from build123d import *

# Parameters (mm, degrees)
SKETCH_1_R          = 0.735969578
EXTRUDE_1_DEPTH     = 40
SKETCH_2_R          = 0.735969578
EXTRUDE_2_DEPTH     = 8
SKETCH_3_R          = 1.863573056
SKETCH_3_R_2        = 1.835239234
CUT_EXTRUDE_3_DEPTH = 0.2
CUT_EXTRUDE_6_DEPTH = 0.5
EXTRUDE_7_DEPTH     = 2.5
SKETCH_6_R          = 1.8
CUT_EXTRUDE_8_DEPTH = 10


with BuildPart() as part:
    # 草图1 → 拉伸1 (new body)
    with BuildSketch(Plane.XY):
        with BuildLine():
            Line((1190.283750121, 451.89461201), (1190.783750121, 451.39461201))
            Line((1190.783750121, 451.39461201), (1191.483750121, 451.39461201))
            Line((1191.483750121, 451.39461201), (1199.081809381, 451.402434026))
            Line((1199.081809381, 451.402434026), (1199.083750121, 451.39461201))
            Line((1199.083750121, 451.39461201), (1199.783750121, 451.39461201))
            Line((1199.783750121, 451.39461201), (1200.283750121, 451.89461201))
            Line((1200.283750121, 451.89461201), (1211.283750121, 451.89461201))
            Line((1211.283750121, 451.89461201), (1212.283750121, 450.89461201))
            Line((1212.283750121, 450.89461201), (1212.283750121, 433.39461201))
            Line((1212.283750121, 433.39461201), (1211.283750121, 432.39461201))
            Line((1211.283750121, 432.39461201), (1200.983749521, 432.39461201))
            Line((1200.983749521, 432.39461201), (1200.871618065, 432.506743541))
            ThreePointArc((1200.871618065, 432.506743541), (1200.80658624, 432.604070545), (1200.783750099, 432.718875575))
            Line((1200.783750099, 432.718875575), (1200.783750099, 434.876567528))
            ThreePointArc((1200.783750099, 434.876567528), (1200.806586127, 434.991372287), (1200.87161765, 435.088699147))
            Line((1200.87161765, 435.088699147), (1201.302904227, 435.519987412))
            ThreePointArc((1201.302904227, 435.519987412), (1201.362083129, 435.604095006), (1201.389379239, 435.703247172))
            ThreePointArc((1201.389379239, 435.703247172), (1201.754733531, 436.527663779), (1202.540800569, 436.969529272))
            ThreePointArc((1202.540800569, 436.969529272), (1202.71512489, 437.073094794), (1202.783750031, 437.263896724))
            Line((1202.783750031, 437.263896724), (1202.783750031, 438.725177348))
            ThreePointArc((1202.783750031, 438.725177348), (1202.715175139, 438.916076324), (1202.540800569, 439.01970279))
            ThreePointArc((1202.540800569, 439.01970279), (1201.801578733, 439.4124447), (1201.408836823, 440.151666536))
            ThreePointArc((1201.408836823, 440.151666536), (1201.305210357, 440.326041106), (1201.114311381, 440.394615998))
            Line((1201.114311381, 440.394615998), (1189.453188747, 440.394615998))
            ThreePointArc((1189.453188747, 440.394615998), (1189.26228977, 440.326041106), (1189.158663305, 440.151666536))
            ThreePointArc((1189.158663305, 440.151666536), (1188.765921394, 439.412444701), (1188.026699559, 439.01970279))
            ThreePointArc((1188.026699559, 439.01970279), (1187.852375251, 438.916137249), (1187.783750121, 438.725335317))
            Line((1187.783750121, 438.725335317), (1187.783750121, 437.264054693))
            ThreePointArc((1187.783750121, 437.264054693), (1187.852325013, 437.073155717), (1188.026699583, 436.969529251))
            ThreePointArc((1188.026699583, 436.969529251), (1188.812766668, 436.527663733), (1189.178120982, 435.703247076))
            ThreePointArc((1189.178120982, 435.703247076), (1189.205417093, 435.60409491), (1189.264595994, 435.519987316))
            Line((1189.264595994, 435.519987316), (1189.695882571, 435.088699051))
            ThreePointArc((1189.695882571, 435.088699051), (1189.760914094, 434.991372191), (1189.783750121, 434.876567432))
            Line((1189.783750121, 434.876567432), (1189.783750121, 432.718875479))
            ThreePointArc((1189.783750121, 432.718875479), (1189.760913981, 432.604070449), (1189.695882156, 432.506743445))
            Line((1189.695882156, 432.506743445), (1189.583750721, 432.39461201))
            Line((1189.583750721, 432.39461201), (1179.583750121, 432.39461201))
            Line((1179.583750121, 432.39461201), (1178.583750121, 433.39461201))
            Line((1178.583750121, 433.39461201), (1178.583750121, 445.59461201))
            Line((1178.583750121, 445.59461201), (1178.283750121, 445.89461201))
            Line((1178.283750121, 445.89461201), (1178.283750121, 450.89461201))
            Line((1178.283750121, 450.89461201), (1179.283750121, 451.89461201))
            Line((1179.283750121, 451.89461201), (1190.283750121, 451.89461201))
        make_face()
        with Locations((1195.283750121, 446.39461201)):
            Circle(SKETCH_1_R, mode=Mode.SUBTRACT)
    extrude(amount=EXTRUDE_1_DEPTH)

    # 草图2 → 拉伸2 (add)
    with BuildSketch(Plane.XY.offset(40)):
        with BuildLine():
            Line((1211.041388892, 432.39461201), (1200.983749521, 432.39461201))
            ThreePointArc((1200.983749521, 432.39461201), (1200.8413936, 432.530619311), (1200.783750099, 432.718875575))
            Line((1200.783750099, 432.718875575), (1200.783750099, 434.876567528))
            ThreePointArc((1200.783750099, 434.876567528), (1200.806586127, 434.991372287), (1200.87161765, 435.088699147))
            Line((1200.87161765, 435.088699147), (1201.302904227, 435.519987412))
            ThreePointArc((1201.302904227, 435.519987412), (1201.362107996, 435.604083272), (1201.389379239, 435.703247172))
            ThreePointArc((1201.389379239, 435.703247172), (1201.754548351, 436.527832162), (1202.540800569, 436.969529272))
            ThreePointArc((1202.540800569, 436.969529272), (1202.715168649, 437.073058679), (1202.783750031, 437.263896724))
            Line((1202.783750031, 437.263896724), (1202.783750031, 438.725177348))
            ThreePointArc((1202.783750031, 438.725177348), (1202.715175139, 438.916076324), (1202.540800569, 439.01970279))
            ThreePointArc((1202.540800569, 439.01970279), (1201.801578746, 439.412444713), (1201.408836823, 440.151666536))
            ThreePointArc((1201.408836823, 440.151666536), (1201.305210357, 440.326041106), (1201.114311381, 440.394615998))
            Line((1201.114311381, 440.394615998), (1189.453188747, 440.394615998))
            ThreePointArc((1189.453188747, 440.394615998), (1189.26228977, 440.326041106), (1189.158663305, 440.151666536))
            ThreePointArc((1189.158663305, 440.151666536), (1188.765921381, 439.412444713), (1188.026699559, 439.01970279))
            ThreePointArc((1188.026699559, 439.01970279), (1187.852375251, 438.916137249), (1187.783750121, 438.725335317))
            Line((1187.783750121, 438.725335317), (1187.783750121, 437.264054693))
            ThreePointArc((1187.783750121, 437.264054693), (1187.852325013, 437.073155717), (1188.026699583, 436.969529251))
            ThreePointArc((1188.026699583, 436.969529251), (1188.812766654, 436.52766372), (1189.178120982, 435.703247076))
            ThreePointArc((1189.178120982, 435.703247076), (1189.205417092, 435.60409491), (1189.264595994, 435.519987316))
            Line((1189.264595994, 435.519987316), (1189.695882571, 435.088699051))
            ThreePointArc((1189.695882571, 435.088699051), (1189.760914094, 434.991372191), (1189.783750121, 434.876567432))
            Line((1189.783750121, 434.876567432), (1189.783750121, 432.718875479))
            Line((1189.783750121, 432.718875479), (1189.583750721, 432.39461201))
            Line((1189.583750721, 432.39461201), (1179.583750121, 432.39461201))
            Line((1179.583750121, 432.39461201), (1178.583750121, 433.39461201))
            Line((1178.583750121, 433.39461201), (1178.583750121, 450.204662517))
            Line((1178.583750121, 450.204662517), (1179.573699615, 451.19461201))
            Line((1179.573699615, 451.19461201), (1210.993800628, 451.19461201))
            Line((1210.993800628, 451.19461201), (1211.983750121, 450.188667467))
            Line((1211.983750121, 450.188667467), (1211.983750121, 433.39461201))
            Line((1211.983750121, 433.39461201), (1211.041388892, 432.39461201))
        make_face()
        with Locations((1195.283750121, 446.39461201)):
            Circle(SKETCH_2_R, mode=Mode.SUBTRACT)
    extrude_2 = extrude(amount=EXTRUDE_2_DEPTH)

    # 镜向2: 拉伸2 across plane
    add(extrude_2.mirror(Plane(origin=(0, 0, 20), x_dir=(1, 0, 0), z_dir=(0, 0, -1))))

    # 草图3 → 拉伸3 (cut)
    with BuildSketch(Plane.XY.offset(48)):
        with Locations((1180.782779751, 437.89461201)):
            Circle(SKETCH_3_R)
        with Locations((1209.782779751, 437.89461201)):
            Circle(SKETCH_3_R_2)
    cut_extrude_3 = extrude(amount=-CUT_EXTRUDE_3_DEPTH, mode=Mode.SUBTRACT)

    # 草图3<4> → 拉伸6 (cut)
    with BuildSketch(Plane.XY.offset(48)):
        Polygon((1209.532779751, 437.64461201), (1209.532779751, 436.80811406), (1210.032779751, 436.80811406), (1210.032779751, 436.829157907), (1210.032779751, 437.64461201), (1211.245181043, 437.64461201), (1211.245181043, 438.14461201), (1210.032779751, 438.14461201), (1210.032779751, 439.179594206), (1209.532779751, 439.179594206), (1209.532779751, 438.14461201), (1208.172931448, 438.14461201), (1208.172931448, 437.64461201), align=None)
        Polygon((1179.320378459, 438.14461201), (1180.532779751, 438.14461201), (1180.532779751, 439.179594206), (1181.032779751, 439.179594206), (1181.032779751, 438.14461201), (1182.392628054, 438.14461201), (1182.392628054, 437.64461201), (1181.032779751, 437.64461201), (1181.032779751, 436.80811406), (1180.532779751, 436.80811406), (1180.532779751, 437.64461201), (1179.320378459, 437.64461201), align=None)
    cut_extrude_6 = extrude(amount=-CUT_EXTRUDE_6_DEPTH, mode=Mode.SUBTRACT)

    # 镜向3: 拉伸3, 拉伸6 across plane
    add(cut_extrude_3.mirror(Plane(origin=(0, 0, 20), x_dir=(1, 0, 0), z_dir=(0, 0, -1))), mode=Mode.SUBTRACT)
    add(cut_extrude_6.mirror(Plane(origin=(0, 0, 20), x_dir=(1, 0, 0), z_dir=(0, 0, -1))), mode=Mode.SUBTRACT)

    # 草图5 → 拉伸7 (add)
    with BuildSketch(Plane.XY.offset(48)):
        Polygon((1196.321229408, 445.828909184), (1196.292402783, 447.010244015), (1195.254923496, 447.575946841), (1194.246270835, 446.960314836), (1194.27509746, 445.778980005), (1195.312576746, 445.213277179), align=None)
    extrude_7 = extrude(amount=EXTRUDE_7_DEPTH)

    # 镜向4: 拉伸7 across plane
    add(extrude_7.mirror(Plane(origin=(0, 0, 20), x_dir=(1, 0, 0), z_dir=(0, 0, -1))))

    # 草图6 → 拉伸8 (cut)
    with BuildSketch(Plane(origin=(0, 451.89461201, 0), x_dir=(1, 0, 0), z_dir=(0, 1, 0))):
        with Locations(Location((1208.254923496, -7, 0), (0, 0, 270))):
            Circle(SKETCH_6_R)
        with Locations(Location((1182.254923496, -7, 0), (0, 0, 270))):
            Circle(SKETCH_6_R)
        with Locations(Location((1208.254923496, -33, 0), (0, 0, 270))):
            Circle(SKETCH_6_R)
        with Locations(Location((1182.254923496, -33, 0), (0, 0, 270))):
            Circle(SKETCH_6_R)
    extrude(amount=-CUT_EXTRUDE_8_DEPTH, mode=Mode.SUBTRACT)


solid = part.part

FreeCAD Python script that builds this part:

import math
import FreeCAD as App
import Part
import Sketcher

V = App.Vector
Q = App.Units.Quantity

doc = App.newDocument("Part")
body = doc.addObject("PartDesign::Body", "Body")

sketch1 = body.newObject("Sketcher::SketchObject", "Sketch")
sketch1.AttachmentSupport = (doc.getObject("XY_Plane"), [""])
sketch1.MapMode = "FlatFace"
sketch1.addGeometry([
    Part.LineSegment(V(1190.784, 451.395, 0), V(1190.284, 451.895, 0)),
    Part.LineSegment(V(1190.284, 451.895, 0), V(1179.284, 451.895, 0)),
    Part.LineSegment(V(1179.284, 451.895, 0), V(1178.284, 450.895, 0)),
    Part.LineSegment(V(1178.284, 450.895, 0), V(1178.284, 445.895, 0)),
    Part.LineSegment(V(1178.284, 445.895, 0), V(1178.584, 445.595, 0)),
    Part.LineSegment(V(1178.584, 445.595, 0), V(1178.584, 433.395, 0)),
    Part.LineSegment(V(1178.584, 433.395, 0), V(1179.584, 432.395, 0)),
    Part.LineSegment(V(1179.584, 432.395, 0), V(1189.584, 432.395, 0)),
    Part.LineSegment(V(1189.584, 432.395, 0), V(1189.696, 432.507, 0)),
    Part.ArcOfCircle(Part.Circle(V(1189.484, 432.719, 0), V(0, 0, 1), 0.3), math.radians(-45), math.radians(0)),
    Part.LineSegment(V(1189.784, 432.719, 0), V(1189.784, 434.877, 0)),
    Part.ArcOfCircle(Part.Circle(V(1189.484, 434.877, 0), V(0, 0, 1), 0.3), math.radians(0), math.radians(45)),
    Part.LineSegment(V(1189.696, 435.089, 0), V(1189.265, 435.52, 0)),
    Part.ArcOfCircle(Part.Circle(V(1189.477, 435.732, 0), V(0, 0, 1), 0.3), math.radians(-174), math.radians(-135)),
    Part.ArcOfCircle(Part.Circle(V(1187.755, 435.566, 0), V(0, 0, 1), 1.43), math.radians(6), math.radians(79)),
    Part.ArcOfCircle(Part.Circle(V(1188.084, 437.264, 0), V(0, 0, 1), 0.3), math.radians(-180), math.radians(-101)),
    Part.LineSegment(V(1187.784, 437.264, 0), V(1187.784, 438.725, 0)),
    Part.ArcOfCircle(Part.Circle(V(1188.084, 438.725, 0), V(0, 0, 1), 0.3), math.radians(101), math.radians(180)),
    Part.ArcOfCircle(Part.Circle(V(1187.755, 440.424, 0), V(0, 0, 1), 1.43), math.radians(-79), math.radians(-11)),
    Part.ArcOfCircle(Part.Circle(V(1189.453, 440.095, 0), V(0, 0, 1), 0.3), math.radians(90), math.radians(169)),
    Part.LineSegment(V(1189.453, 440.395, 0), V(1201.114, 440.395, 0)),
    Part.ArcOfCircle(Part.Circle(V(1201.114, 440.095, 0), V(0, 0, 1), 0.3), math.radians(11), math.radians(90)),
    Part.ArcOfCircle(Part.Circle(V(1202.813, 440.424, 0), V(0, 0, 1), 1.43), math.radians(-169), math.radians(-101)),
    Part.ArcOfCircle(Part.Circle(V(1202.484, 438.725, 0), V(0, 0, 1), 0.3), math.radians(0), math.radians(79)),
    Part.LineSegment(V(1202.784, 438.725, 0), V(1202.784, 437.264, 0)),
    Part.ArcOfCircle(Part.Circle(V(1202.484, 437.264, 0), V(0, 0, 1), 0.3), math.radians(-79), math.radians(0)),
    Part.ArcOfCircle(Part.Circle(V(1202.813, 435.566, 0), V(0, 0, 1), 1.43), math.radians(101), math.radians(174)),
    Part.ArcOfCircle(Part.Circle(V(1201.091, 435.732, 0), V(0, 0, 1), 0.3), math.radians(-45), math.radians(-6)),
    Part.LineSegment(V(1201.303, 435.52, 0), V(1200.872, 435.089, 0)),
    Part.ArcOfCircle(Part.Circle(V(1201.084, 434.877, 0), V(0, 0, 1), 0.3), math.radians(135), math.radians(180)),
    Part.LineSegment(V(1200.784, 434.877, 0), V(1200.784, 432.719, 0)),
    Part.ArcOfCircle(Part.Circle(V(1201.084, 432.719, 0), V(0, 0, 1), 0.3), math.radians(-180), math.radians(-135)),
    Part.LineSegment(V(1200.872, 432.507, 0), V(1200.984, 432.395, 0)),
    Part.LineSegment(V(1200.984, 432.395, 0), V(1211.284, 432.395, 0)),
    Part.LineSegment(V(1211.284, 432.395, 0), V(1212.284, 433.395, 0)),
    Part.LineSegment(V(1212.284, 433.395, 0), V(1212.284, 450.895, 0)),
    Part.LineSegment(V(1212.284, 450.895, 0), V(1211.284, 451.895, 0)),
    Part.LineSegment(V(1211.284, 451.895, 0), V(1200.284, 451.895, 0)),
    Part.LineSegment(V(1200.284, 451.895, 0), V(1199.784, 451.395, 0)),
    Part.LineSegment(V(1199.784, 451.395, 0), V(1199.084, 451.395, 0)),
    Part.LineSegment(V(1199.084, 451.395, 0), V(1199.082, 451.402, 0)),
    Part.LineSegment(V(1199.082, 451.402, 0), V(1191.484, 451.395, 0)),
    Part.LineSegment(V(1191.484, 451.395, 0), V(1190.784, 451.395, 0)),
    Part.Circle(V(1195.284, 446.395, 0), V(0, 0, 1), 0.736),
], False)
sketch1.addConstraint([
    Sketcher.Constraint("Coincident", 0, 2, 1, 1),
    Sketcher.Constraint("Coincident", 1, 2, 2, 1),
    Sketcher.Constraint("Coincident", 2, 2, 3, 1),
    Sketcher.Constraint("Coincident", 3, 2, 4, 1),
    Sketcher.Constraint("Coincident", 4, 2, 5, 1),
    Sketcher.Constraint("Coincident", 5, 2, 6, 1),
    Sketcher.Constraint("Coincident", 6, 2, 7, 1),
    Sketcher.Constraint("Coincident", 7, 2, 8, 1),
    Sketcher.Constraint("Tangent", 8, 2, 9, 1),
    Sketcher.Constraint("Tangent", 9, 2, 10, 1),
    Sketcher.Constraint("Tangent", 10, 2, 11, 1),
    Sketcher.Constraint("Tangent", 11, 2, 12, 1),
    Sketcher.Constraint("Tangent", 12, 2, 13, 2),
    Sketcher.Constraint("Tangent", 13, 1, 14, 1),
    Sketcher.Constraint("Tangent", 14, 2, 15, 2),
    Sketcher.Constraint("Tangent", 15, 1, 16, 1),
    Sketcher.Constraint("Coincident", 16, 2, 17, 2),
    Sketcher.Constraint("Tangent", 17, 1, 18, 1),
    Sketcher.Constraint("Tangent", 18, 2, 19, 2),
    Sketcher.Constraint("Tangent", 19, 1, 20, 1),
    Sketcher.Constraint("Tangent", 20, 2, 21, 2),
    Sketcher.Constraint("Tangent", 21, 1, 22, 1),
    Sketcher.Constraint("Tangent", 22, 2, 23, 2),
    Sketcher.Constraint("Tangent", 23, 1, 24, 1),
    Sketcher.Constraint("Coincident", 24, 2, 25, 2),
    Sketcher.Constraint("Tangent", 25, 1, 26, 1),
    Sketcher.Constraint("Tangent", 26, 2, 27, 2),
    Sketcher.Constraint("Tangent", 27, 1, 28, 1),
    Sketcher.Constraint("Tangent", 28, 2, 29, 1),
    Sketcher.Constraint("Tangent", 29, 2, 30, 1),
    Sketcher.Constraint("Tangent", 30, 2, 31, 1),
    Sketcher.Constraint("Tangent", 31, 2, 32, 1),
    Sketcher.Constraint("Coincident", 32, 2, 33, 1),
    Sketcher.Constraint("Coincident", 33, 2, 34, 1),
    Sketcher.Constraint("Coincident", 34, 2, 35, 1),
    Sketcher.Constraint("Coincident", 35, 2, 36, 1),
    Sketcher.Constraint("Coincident", 36, 2, 37, 1),
    Sketcher.Constraint("Coincident", 37, 2, 38, 1),
    Sketcher.Constraint("Coincident", 38, 2, 39, 1),
    Sketcher.Constraint("Coincident", 39, 2, 40, 1),
    Sketcher.Constraint("Coincident", 40, 2, 41, 1),
    Sketcher.Constraint("Coincident", 41, 2, 42, 1),
    Sketcher.Constraint("Coincident", 42, 2, 0, 1),
    Sketcher.Constraint("Horizontal", 1),
    Sketcher.Constraint("Vertical", 3),
    Sketcher.Constraint("Vertical", 5),
    Sketcher.Constraint("Horizontal", 7),
    Sketcher.Constraint("Vertical", 10),
    Sketcher.Constraint("Vertical", 16),
    Sketcher.Constraint("Horizontal", 20),
    Sketcher.Constraint("Vertical", 24),
    Sketcher.Constraint("Vertical", 30),
    Sketcher.Constraint("Horizontal", 33),
    Sketcher.Constraint("Vertical", 35),
    Sketcher.Constraint("Horizontal", 37),
    Sketcher.Constraint("Horizontal", 39),
    Sketcher.Constraint("Horizontal", 42),
    Sketcher.Constraint("Equal", 9, 11),
    Sketcher.Constraint("Equal", 11, 13),
    Sketcher.Constraint("Equal", 13, 15),
    Sketcher.Constraint("Equal", 15, 17),
    Sketcher.Constraint("Equal", 14, 18),
    Sketcher.Constraint("Equal", 17, 19),
    Sketcher.Constraint("Equal", 19, 21),
    Sketcher.Constraint("Equal", 18, 22),
    Sketcher.Constraint("Equal", 21, 23),
    Sketcher.Constraint("Equal", 23, 25),
    Sketcher.Constraint("Equal", 22, 26),
    Sketcher.Constraint("Equal", 25, 27),
    Sketcher.Constraint("Equal", 27, 29),
    Sketcher.Constraint("Equal", 29, 31),
    Sketcher.Constraint("Perpendicular", 0, 2),
    Sketcher.Constraint("Perpendicular", 2, 4),
    Sketcher.Constraint("Parallel", 4, 6),
    Sketcher.Constraint("Perpendicular", 6, 8),
    Sketcher.Constraint("Perpendicular", 8, 12),
    Sketcher.Constraint("Parallel", 8, 28),
    Sketcher.Constraint("Parallel", 12, 32),
    Sketcher.Constraint("Perpendicular", 32, 34),
    Sketcher.Constraint("Perpendicular", 34, 36),
    Sketcher.Constraint("Perpendicular", 36, 38),
    Sketcher.Constraint("Horizontal", 18, 3, 22, 3),
    Sketcher.Constraint("Horizontal", 17, 3, 23, 3),
    Sketcher.Constraint("Horizontal", 15, 3, 25, 3),
    Sketcher.Constraint("Horizontal", 14, 3, 26, 3),
    Sketcher.Constraint("Horizontal", 13, 3, 27, 3),
    Sketcher.Constraint("Horizontal", 11, 3, 29, 3),
    Sketcher.Constraint("Horizontal", 9, 3, 31, 3),
    Sketcher.Constraint("Horizontal", 12, 2, 27, 1),
    Sketcher.Constraint("Horizontal", 7, 2, 32, 2),
    Sketcher.Constraint("Horizontal", 5, 2, 34, 2),
    Sketcher.Constraint("Horizontal", 2, 2, 35, 2),
    Sketcher.Constraint("Horizontal", 1, 2, 36, 2),
    Sketcher.Constraint("Horizontal", 39, 2, 41, 2),
    Sketcher.Constraint("Vertical", 14, 3, 18, 3),
    Sketcher.Constraint("Vertical", 33, 2, 36, 2),
    Sketcher.Constraint("Equal", 1, 37),
    Sketcher.Constraint("Equal", 39, 42),
    Sketcher.Constraint("Equal", 16, 24),
    Sketcher.Constraint("Radius", 9, Q("0.3 mm")),
    Sketcher.Constraint("DistanceX", 1, 2, 1, 1, Q("11 mm")),
    Sketcher.Constraint("DistanceX", 7, 1, 7, 2, Q("10.000001 mm")),
    Sketcher.Constraint("DistanceY", 3, 2, 3, 1, Q("5 mm")),
    Sketcher.Constraint("Radius", 14, Q("1.43 mm")),
    Sketcher.Constraint("DistanceX", 33, 1, 33, 2, Q("10.300001 mm")),
    Sketcher.Constraint("DistanceX", 39, 2, 39, 1, Q("0.7 mm")),
    Sketcher.Constraint("DistanceY", 5, 2, 5, 1, Q("12.2 mm")),
    Sketcher.Constraint("DistanceY", 35, 1, 35, 2, Q("17.5 mm")),
    Sketcher.Constraint("DistanceX", 11, 3, 23, 3, Q("13 mm")),
    Sketcher.Constraint("DistanceX", 0, 2, 43, 3, Q("5 mm")),
    Sketcher.Constraint("DistanceX", 2, 2, 1, 2, Q("1 mm")),
    Sketcher.Constraint("DistanceX", 43, 3, 37, 2, Q("5 mm")),
    Sketcher.Constraint("DistanceY", 43, 3, 38, 2, Q("5 mm")),
    Sketcher.Constraint("DistanceX", 15, 3, 11, 3, Q("1.4 mm")),
    Sketcher.Constraint("DistanceY", 43, 3, 0, 2, Q("5.5 mm")),
    Sketcher.Constraint("Diameter", 43, Q("1.471939 mm")),
    Sketcher.Constraint("DistanceY", 10, 1, 10, 2, Q("2.157692 mm")),
    Sketcher.Constraint("DistanceY", 16, 1, 16, 2, Q("1.461281 mm")),
    Sketcher.Constraint("DistanceY", -1, 1, 11, 2, Q("435.088699 mm")),
    Sketcher.Constraint("DistanceX", -1, 1, 14, 2, Q("1188.0267 mm")),
    Sketcher.Constraint("DistanceX", -1, 1, 22, 2, Q("1202.540801 mm")),
    Sketcher.Constraint("DistanceY", 9, 3, 17, 3, Q("6.006302 mm")),
    Sketcher.Constraint("Distance", 40, Q("0.008059 mm")),
    Sketcher.Constraint("DistanceX", 20, 1, 20, 2, Q("11.661123 mm")),
    Sketcher.Constraint("DistanceX", -1, 1, 13, 3, Q("1189.476728 mm")),
    Sketcher.Constraint("DistanceX", -1, 1, 40, 2, Q("1199.081809 mm")),
])
pad1 = body.newObject("PartDesign::Pad", "Pad")
pad1.Profile = sketch1
pad1.Length = 40

sketch2 = body.newObject("Sketcher::SketchObject", "Sketch001")
sketch2.AttachmentSupport = (doc.getObject("XY_Plane"), [""])
sketch2.MapMode = "FlatFace"
sketch2.AttachmentOffset = App.Placement(V(0, 0, 40), App.Rotation())
sketch2.addGeometry([
    Part.LineSegment(V(1200.98, 432.39, 0), V(1211.04, 432.39, 0)),
    Part.LineSegment(V(1211.04, 432.39, 0), V(1211.98, 433.39, 0)),
    Part.LineSegment(V(1211.98, 433.39, 0), V(1211.98, 450.19, 0)),
    Part.LineSegment(V(1211.98, 450.19, 0), V(1210.99, 451.19, 0)),
    Part.LineSegment(V(1210.99, 451.19, 0), V(1179.57, 451.19, 0)),
    Part.LineSegment(V(1179.57, 451.19, 0), V(1178.58, 450.2, 0)),
    Part.LineSegment(V(1178.58, 450.2, 0), V(1178.58, 433.39, 0)),
    Part.LineSegment(V(1178.58, 433.39, 0), V(1179.58, 432.39, 0)),
    Part.LineSegment(V(1179.58, 432.39, 0), V(1189.58, 432.39, 0)),
    Part.LineSegment(V(1189.58, 432.39, 0), V(1189.78, 432.72, 0)),
    Part.LineSegment(V(1189.78, 432.72, 0), V(1189.78, 434.88, 0)),
    Part.ArcOfCircle(Part.Circle(V(1189.48, 434.88, 0), V(0, 0, 1), 0.3), math.radians(0), math.radians(45)),
    Part.LineSegment(V(1189.7, 435.09, 0), V(1189.26, 435.52, 0)),
    Part.ArcOfCircle(Part.Circle(V(1189.48, 435.73, 0), V(0, 0, 1), 0.3), math.radians(-174), math.radians(-135)),
    Part.ArcOfCircle(Part.Circle(V(1187.75, 435.57, 0), V(0, 0, 1), 1.43), math.radians(6), math.radians(79)),
    Part.ArcOfCircle(Part.Circle(V(1188.08, 437.26, 0), V(0, 0, 1), 0.3), math.radians(-180), math.radians(-101)),
    Part.LineSegment(V(1187.78, 437.26, 0), V(1187.78, 438.73, 0)),
    Part.ArcOfCircle(Part.Circle(V(1188.08, 438.73, 0), V(0, 0, 1), 0.3), math.radians(101), math.radians(180)),
    Part.ArcOfCircle(Part.Circle(V(1187.75, 440.42, 0), V(0, 0, 1), 1.43), math.radians(-79), math.radians(-11)),
    Part.ArcOfCircle(Part.Circle(V(1189.45, 440.09, 0), V(0, 0, 1), 0.3), math.radians(90), math.radians(169)),
    Part.LineSegment(V(1189.45, 440.39, 0), V(1201.11, 440.39, 0)),
    Part.ArcOfCircle(Part.Circle(V(1201.11, 440.09, 0), V(0, 0, 1), 0.3), math.radians(11), math.radians(90)),
    Part.ArcOfCircle(Part.Circle(V(1202.81, 440.42, 0), V(0, 0, 1), 1.43), math.radians(-169), math.radians(-101)),
    Part.ArcOfCircle(Part.Circle(V(1202.48, 438.73, 0), V(0, 0, 1), 0.3), math.radians(0), math.radians(79)),
    Part.LineSegment(V(1202.78, 438.73, 0), V(1202.78, 437.26, 0)),
    Part.ArcOfCircle(Part.Circle(V(1202.48, 437.26, 0), V(0, 0, 1), 0.3), math.radians(-79), math.radians(0)),
    Part.ArcOfCircle(Part.Circle(V(1202.81, 435.57, 0), V(0, 0, 1), 1.43), math.radians(101), math.radians(175)),
    Part.ArcOfCircle(Part.Circle(V(1201.09, 435.73, 0), V(0, 0, 1), 0.3), math.radians(-45), math.radians(-5)),
    Part.LineSegment(V(1201.3, 435.52, 0), V(1200.87, 435.09, 0)),
    Part.ArcOfCircle(Part.Circle(V(1201.08, 434.88, 0), V(0, 0, 1), 0.3), math.radians(135), math.radians(180)),
    Part.LineSegment(V(1200.78, 434.88, 0), V(1200.78, 432.72, 0)),
    Part.ArcOfCircle(Part.Circle(V(1201.17, 432.74, 0), V(0, 0, 1), 0.39), math.radians(-178), math.radians(-119)),
    Part.Circle(V(1195.28, 446.39, 0), V(0, 0, 1), 0.74),
], False)
sketch2.addConstraint([
    Sketcher.Constraint("Coincident", 0, 2, 1, 1),
    Sketcher.Constraint("Coincident", 1, 2, 2, 1),
    Sketcher.Constraint("Coincident", 2, 2, 3, 1),
    Sketcher.Constraint("Coincident", 3, 2, 4, 1),
    Sketcher.Constraint("Coincident", 4, 2, 5, 1),
    Sketcher.Constraint("Coincident", 5, 2, 6, 1),
    Sketcher.Constraint("Coincident", 6, 2, 7, 1),
    Sketcher.Constraint("Coincident", 7, 2, 8, 1),
    Sketcher.Constraint("Coincident", 8, 2, 9, 1),
    Sketcher.Constraint("Coincident", 9, 2, 10, 1),
    Sketcher.Constraint("Tangent", 10, 2, 11, 1),
    Sketcher.Constraint("Tangent", 11, 2, 12, 1),
    Sketcher.Constraint("Tangent", 12, 2, 13, 2),
    Sketcher.Constraint("Tangent", 13, 1, 14, 1),
    Sketcher.Constraint("Tangent", 14, 2, 15, 2),
    Sketcher.Constraint("Tangent", 15, 1, 16, 1),
    Sketcher.Constraint("Coincident", 16, 2, 17, 2),
    Sketcher.Constraint("Tangent", 17, 1, 18, 1),
    Sketcher.Constraint("Tangent", 18, 2, 19, 2),
    Sketcher.Constraint("Tangent", 19, 1, 20, 1),
    Sketcher.Constraint("Tangent", 20, 2, 21, 2),
    Sketcher.Constraint("Tangent", 21, 1, 22, 1),
    Sketcher.Constraint("Tangent", 22, 2, 23, 2),
    Sketcher.Constraint("Tangent", 23, 1, 24, 1),
    Sketcher.Constraint("Tangent", 24, 2, 25, 2),
    Sketcher.Constraint("Tangent", 25, 1, 26, 1),
    Sketcher.Constraint("Tangent", 26, 2, 27, 2),
    Sketcher.Constraint("Coincident", 27, 1, 28, 1),
    Sketcher.Constraint("Tangent", 28, 2, 29, 1),
    Sketcher.Constraint("Tangent", 29, 2, 30, 1),
    Sketcher.Constraint("Coincident", 30, 2, 31, 1),
    Sketcher.Constraint("Coincident", 31, 2, 0, 1),
    Sketcher.Constraint("Horizontal", 0),
    Sketcher.Constraint("Vertical", 2),
    Sketcher.Constraint("Horizontal", 4),
    Sketcher.Constraint("Vertical", 6),
    Sketcher.Constraint("Horizontal", 8),
    Sketcher.Constraint("Vertical", 10),
    Sketcher.Constraint("Vertical", 16),
    Sketcher.Constraint("Horizontal", 20),
    Sketcher.Constraint("Vertical", 24),
    Sketcher.Constraint("Vertical", 30),
    Sketcher.Constraint("Equal", 11, 13),
    Sketcher.Constraint("Equal", 13, 15),
    Sketcher.Constraint("Equal", 15, 17),
    Sketcher.Constraint("Equal", 14, 18),
    Sketcher.Constraint("Equal", 17, 19),
    Sketcher.Constraint("Equal", 19, 21),
    Sketcher.Constraint("Equal", 18, 22),
    Sketcher.Constraint("Equal", 21, 23),
    Sketcher.Constraint("Equal", 23, 29),
    Sketcher.Constraint("Perpendicular", 5, 7),
    Sketcher.Constraint("Parallel", 7, 12),
    Sketcher.Constraint("Perpendicular", 7, 28),
    Sketcher.Constraint("Horizontal", 18, 3, 22, 3),
    Sketcher.Constraint("Horizontal", 17, 3, 23, 3),
    Sketcher.Constraint("Horizontal", 11, 3, 29, 3),
    Sketcher.Constraint("Horizontal", 1, 2, 6, 2),
    Sketcher.Constraint("Horizontal", 0, 2, 7, 2),
    Sketcher.Constraint("Horizontal", 14, 2, 25, 1),
    Sketcher.Constraint("Horizontal", 13, 1, 26, 2),
    Sketcher.Constraint("Horizontal", 12, 2, 27, 1),
    Sketcher.Constraint("Horizontal", 11, 2, 28, 2),
    Sketcher.Constraint("Horizontal", 9, 2, 30, 2),
    Sketcher.Constraint("Vertical", 14, 3, 18, 3),
    Sketcher.Constraint("Vertical", 22, 2, 25, 1),
    Sketcher.Constraint("Equal", 16, 24),
    Sketcher.Constraint("Radius", 11, Q("0.3 mm")),
    Sketcher.Constraint("DistanceX", 8, 1, 8, 2, Q("10.000001 mm")),
    Sketcher.Constraint("Radius", 14, Q("1.43 mm")),
    Sketcher.Constraint("DistanceX", 11, 3, 23, 3, Q("13 mm")),
    Sketcher.Constraint("DistanceY", 0, 2, 1, 2, Q("1 mm")),
    Sketcher.Constraint("Distance", 5, Q("1.4 mm")),
    Sketcher.Constraint("DistanceX", 15, 3, 11, 3, Q("1.4 mm")),
    Sketcher.Constraint("DistanceX", 29, 3, 23, 3, Q("1.4 mm")),
    Sketcher.Constraint("DistanceX", 32, 3, 23, 3, Q("7.2 mm")),
    Sketcher.Constraint("DistanceX", 23, 3, 1, 2, Q("9.5 mm")),
    Sketcher.Constraint("DistanceY", 32, 3, 4, 2, Q("4.8 mm")),
    Sketcher.Constraint("DistanceX", 5, 2, 17, 3, Q("9.5 mm")),
    Sketcher.Constraint("DistanceX", 30, 2, 31, 2, Q("0.199999 mm")),
    Sketcher.Constraint("Diameter", 32, Q("1.471939 mm")),
    Sketcher.Constraint("Radius", 25, Q("0.299809 mm")),
    Sketcher.Constraint("Radius", 27, Q("0.29956 mm")),
    Sketcher.Constraint("DistanceX", 4, 2, 4, 1, Q("31.420101 mm")),
    Sketcher.Constraint("Radius", 31, Q("0.389464 mm")),
    Sketcher.Constraint("DistanceX", 0, 1, 0, 2, Q("10.057639 mm")),
    Sketcher.Constraint("DistanceY", 6, 2, 6, 1, Q("16.810051 mm")),
    Sketcher.Constraint("DistanceY", 10, 1, 10, 2, Q("2.157692 mm")),
    Sketcher.Constraint("DistanceY", 16, 1, 16, 2, Q("1.461281 mm")),
    Sketcher.Constraint("DistanceX", -1, 1, 3, 2, Q("1210.993801 mm")),
    Sketcher.Constraint("DistanceY", -1, 1, 11, 2, Q("435.088699 mm")),
    Sketcher.Constraint("DistanceX", -1, 1, 14, 2, Q("1188.0267 mm")),
    Sketcher.Constraint("DistanceX", 21, 3, 26, 3, Q("1.697499 mm")),
    Sketcher.Constraint("DistanceY", 31, 3, 26, 3, Q("2.831399 mm")),
    Sketcher.Constraint("Distance", 9, Q("0.380981 mm")),
    Sketcher.Constraint("DistanceY", 2, 1, 2, 2, Q("16.794055 mm")),
])
pad2 = body.newObject("PartDesign::Pad", "Pad001")
pad2.Profile = sketch2
pad2.Length = 8
doc.recompute()

datumplane = body.newObject("PartDesign::Plane", "DatumPlane")
datumplane.AttachmentSupport = (doc.getObject("XY_Plane"), [""])
datumplane.MapMode = "FlatFace"
datumplane.AttachmentOffset = App.Placement(V(0, 0, 20), App.Rotation())
mirrored = body.newObject("PartDesign::Mirrored", "Mirrored")
mirrored.Originals = [pad2]
mirrored.MirrorPlane = (datumplane, [""])
body.Tip = mirrored

sketch3 = body.newObject("Sketcher::SketchObject", "Sketch002")
sketch3.AttachmentSupport = (doc.getObject("XY_Plane"), [""])
sketch3.MapMode = "FlatFace"
sketch3.AttachmentOffset = App.Placement(V(0, 0, 48), App.Rotation())
sketch3.addGeometry([
    Part.Circle(V(1180.8, 437.9, 0), V(0, 0, 1), 1.9),
    Part.Circle(V(1209.8, 437.9, 0), V(0, 0, 1), 1.8),
], False)
sketch3.addConstraint([
    Sketcher.Constraint("Horizontal", 0, 3, 1, 3),
    Sketcher.Constraint("DistanceX", 0, 3, 1, 3, Q("29 mm")),
    Sketcher.Constraint("Diameter", 1, Q("3.670478 mm")),
    Sketcher.Constraint("Diameter", 0, Q("3.727146 mm")),
    Sketcher.Constraint("DistanceX", -1, 1, 0, 3, Q("1180.78278 mm")),
    Sketcher.Constraint("DistanceY", -1, 1, 0, 3, Q("437.894612 mm")),
])
pocket1 = body.newObject("PartDesign::Pocket", "Pocket")
pocket1.Profile = sketch3
pocket1.Length = 0.2

sketch4 = body.newObject("Sketcher::SketchObject", "Sketch003")
sketch4.AttachmentSupport = (doc.getObject("XY_Plane"), [""])
sketch4.MapMode = "FlatFace"
sketch4.AttachmentOffset = App.Placement(V(0, 0, 48), App.Rotation())
sketch4.addGeometry([
    Part.LineSegment(V(1209.5, 437.6, 0), V(1209.5, 436.8, 0)),
    Part.LineSegment(V(1209.5, 436.8, 0), V(1210, 436.8, 0)),
    Part.LineSegment(V(1210, 436.8, 0), V(1210, 437.6, 0)),
    Part.LineSegment(V(1210, 437.6, 0), V(1211.2, 437.6, 0)),
    Part.LineSegment(V(1211.2, 437.6, 0), V(1211.2, 438.1, 0)),
    Part.LineSegment(V(1211.2, 438.1, 0), V(1210, 438.1, 0)),
    Part.LineSegment(V(1210, 438.1, 0), V(1210, 439.2, 0)),
    Part.LineSegment(V(1210, 439.2, 0), V(1209.5, 439.2, 0)),
    Part.LineSegment(V(1209.5, 439.2, 0), V(1209.5, 438.1, 0)),
    Part.LineSegment(V(1209.5, 438.1, 0), V(1208.2, 438.1, 0)),
    Part.LineSegment(V(1208.2, 438.1, 0), V(1208.2, 437.6, 0)),
    Part.LineSegment(V(1208.2, 437.6, 0), V(1209.5, 437.6, 0)),
    Part.LineSegment(V(1180.5, 438.1, 0), V(1179.3, 438.1, 0)),
    Part.LineSegment(V(1179.3, 438.1, 0), V(1179.3, 437.6, 0)),
    Part.LineSegment(V(1179.3, 437.6, 0), V(1180.5, 437.6, 0)),
    Part.LineSegment(V(1180.5, 437.6, 0), V(1180.5, 436.8, 0)),
    Part.LineSegment(V(1180.5, 436.8, 0), V(1181, 436.8, 0)),
    Part.LineSegment(V(1181, 436.8, 0), V(1181, 437.6, 0)),
    Part.LineSegment(V(1181, 437.6, 0), V(1182.4, 437.6, 0)),
    Part.LineSegment(V(1182.4, 437.6, 0), V(1182.4, 438.1, 0)),
    Part.LineSegment(V(1182.4, 438.1, 0), V(1181, 438.1, 0)),
    Part.LineSegment(V(1181, 438.1, 0), V(1181, 439.2, 0)),
    Part.LineSegment(V(1181, 439.2, 0), V(1180.5, 439.2, 0)),
    Part.LineSegment(V(1180.5, 439.2, 0), V(1180.5, 438.1, 0)),
], False)
sketch4.addConstraint([
    Sketcher.Constraint("Coincident", 0, 2, 1, 1),
    Sketcher.Constraint("Coincident", 1, 2, 2, 1),
    Sketcher.Constraint("Coincident", 2, 2, 3, 1),
    Sketcher.Constraint("Coincident", 3, 2, 4, 1),
    Sketcher.Constraint("Coincident", 4, 2, 5, 1),
    Sketcher.Constraint("Coincident", 5, 2, 6, 1),
    Sketcher.Constraint("Coincident", 6, 2, 7, 1),
    Sketcher.Constraint("Coincident", 7, 2, 8, 1),
    Sketcher.Constraint("Coincident", 8, 2, 9, 1),
    Sketcher.Constraint("Coincident", 9, 2, 10, 1),
    Sketcher.Constraint("Coincident", 10, 2, 11, 1),
    Sketcher.Constraint("Coincident", 11, 2, 0, 1),
    Sketcher.Constraint("Coincident", 12, 2, 13, 1),
    Sketcher.Constraint("Coincident", 13, 2, 14, 1),
    Sketcher.Constraint("Coincident", 14, 2, 15, 1),
    Sketcher.Constraint("Coincident", 15, 2, 16, 1),
    Sketcher.Constraint("Coincident", 16, 2, 17, 1),
    Sketcher.Constraint("Coincident", 17, 2, 18, 1),
    Sketcher.Constraint("Coincident", 18, 2, 19, 1),
    Sketcher.Constraint("Coincident", 19, 2, 20, 1),
    Sketcher.Constraint("Coincident", 20, 2, 21, 1),
    Sketcher.Constraint("Coincident", 21, 2, 22, 1),
    Sketcher.Constraint("Coincident", 22, 2, 23, 1),
    Sketcher.Constraint("Coincident", 23, 2, 12, 1),
    Sketcher.Constraint("Vertical", 0),
    Sketcher.Constraint("Horizontal", 1),
    Sketcher.Constraint("Vertical", 2),
    Sketcher.Constraint("Horizontal", 3),
    Sketcher.Constraint("Vertical", 4),
    Sketcher.Constraint("Horizontal", 5),
    Sketcher.Constraint("Vertical", 6),
    Sketcher.Constraint("Horizontal", 7),
    Sketcher.Constraint("Vertical", 8),
    Sketcher.Constraint("Horizontal", 9),
    Sketcher.Constraint("Vertical", 10),
    Sketcher.Constraint("Horizontal", 11),
    Sketcher.Constraint("Horizontal", 12),
    Sketcher.Constraint("Vertical", 13),
    Sketcher.Constraint("Horizontal", 14),
    Sketcher.Constraint("Vertical", 15),
    Sketcher.Constraint("Horizontal", 16),
    Sketcher.Constraint("Vertical", 17),
    Sketcher.Constraint("Horizontal", 18),
    Sketcher.Constraint("Vertical", 19),
    Sketcher.Constraint("Horizontal", 20),
    Sketcher.Constraint("Vertical", 21),
    Sketcher.Constraint("Horizontal", 22),
    Sketcher.Constraint("Vertical", 23),
    Sketcher.Constraint("Horizontal", 5, 2, 8, 2),
    Sketcher.Constraint("Horizontal", 3, 2, 10, 2),
    Sketcher.Constraint("Horizontal", 9, 2, 12, 2),
    Sketcher.Constraint("Horizontal", 11, 2, 13, 2),
    Sketcher.Constraint("Horizontal", 1, 2, 15, 2),
    Sketcher.Constraint("Horizontal", 14, 2, 17, 2),
    Sketcher.Constraint("Horizontal", 12, 2, 19, 2),
    Sketcher.Constraint("Horizontal", 7, 2, 21, 2),
    Sketcher.Constraint("Vertical", 2, 2, 5, 2),
    Sketcher.Constraint("Vertical", 0, 2, 7, 2),
    Sketcher.Constraint("Vertical", 17, 2, 20, 2),
    Sketcher.Constraint("Vertical", 15, 2, 22, 2),
    Sketcher.Constraint("Equal", 5, 12),
    Sketcher.Constraint("Equal", 7, 16),
    Sketcher.Constraint("Equal", 11, 18),
    Sketcher.Constraint("Equal", 22, 4),
    Sketcher.Constraint("DistanceX", 1, 1, 1, 2, Q("0.5 mm")),
    Sketcher.Constraint("DistanceX", 14, 2, 11, 2, Q("29 mm")),
    Sketcher.Constraint("DistanceX", 3, 1, 3, 2, Q("1.212401 mm")),
    Sketcher.Constraint("DistanceX", 9, 2, 9, 1, Q("1.359848 mm")),
    Sketcher.Constraint("DistanceY", 0, 2, 0, 1, Q("0.836498 mm")),
    Sketcher.Constraint("DistanceY", 6, 1, 6, 2, Q("1.034982 mm")),
    Sketcher.Constraint("DistanceX", -1, 1, 0, 2, Q("1209.53278 mm")),
    Sketcher.Constraint("DistanceY", -1, 1, 0, 2, Q("436.808114 mm")),
])
pocket2 = body.newObject("PartDesign::Pocket", "Pocket001")
pocket2.Profile = sketch4
pocket2.Length = 0.5
doc.recompute()

datumplane2 = body.newObject("PartDesign::Plane", "DatumPlane001")
datumplane2.AttachmentSupport = (doc.getObject("XY_Plane"), [""])
datumplane2.MapMode = "FlatFace"
datumplane2.AttachmentOffset = App.Placement(V(0, 0, 20), App.Rotation())
mirrored2 = body.newObject("PartDesign::Mirrored", "Mirrored001")
mirrored2.Originals = [pocket1, pocket2]
mirrored2.MirrorPlane = (datumplane2, [""])
body.Tip = mirrored2

sketch5 = body.newObject("Sketcher::SketchObject", "Sketch004")
sketch5.AttachmentSupport = (doc.getObject("XY_Plane"), [""])
sketch5.MapMode = "FlatFace"
sketch5.AttachmentOffset = App.Placement(V(0, 0, 48), App.Rotation())
sketch5.addGeometry([
    Part.LineSegment(V(1196.3, 445.8, 0), V(1196.3, 447, 0)),
    Part.LineSegment(V(1196.3, 447, 0), V(1195.3, 447.6, 0)),
    Part.LineSegment(V(1195.3, 447.6, 0), V(1194.2, 447, 0)),
    Part.LineSegment(V(1194.2, 447, 0), V(1194.3, 445.8, 0)),
    Part.LineSegment(V(1194.3, 445.8, 0), V(1195.3, 445.2, 0)),
    Part.LineSegment(V(1195.3, 445.2, 0), V(1196.3, 445.8, 0)),
], False)
sketch5.addConstraint([
    Sketcher.Constraint("Coincident", 0, 2, 1, 1),
    Sketcher.Constraint("Coincident", 1, 2, 2, 1),
    Sketcher.Constraint("Coincident", 2, 2, 3, 1),
    Sketcher.Constraint("Coincident", 3, 2, 4, 1),
    Sketcher.Constraint("Coincident", 4, 2, 5, 1),
    Sketcher.Constraint("Coincident", 5, 2, 0, 1),
    Sketcher.Constraint("Parallel", 0, 3),
    Sketcher.Constraint("Parallel", 1, 4),
    Sketcher.Constraint("Parallel", 2, 5),
    Sketcher.Constraint("Equal", 0, 1),
    Sketcher.Constraint("Equal", 1, 2),
    Sketcher.Constraint("Equal", 2, 3),
    Sketcher.Constraint("DistanceX", -1, 1, 2, 2, Q("1194.246271 mm")),
    Sketcher.Constraint("DistanceY", -1, 1, 3, 2, Q("445.77898 mm")),
    Sketcher.Constraint("DistanceX", -1, 1, 5, 2, Q("1196.321229 mm")),
    Sketcher.Constraint("DistanceY", -1, 1, 5, 2, Q("445.828909 mm")),
    Sketcher.Constraint("DistanceX", 1, 2, 0, 2, Q("1.037479 mm")),
    Sketcher.Constraint("DistanceX", 2, 2, 0, 2, Q("2.046132 mm")),
])
pad3 = body.newObject("PartDesign::Pad", "Pad002")
pad3.Profile = sketch5
pad3.Length = 2.5
doc.recompute()

datumplane3 = body.newObject("PartDesign::Plane", "DatumPlane002")
datumplane3.AttachmentSupport = (doc.getObject("XY_Plane"), [""])
datumplane3.MapMode = "FlatFace"
datumplane3.AttachmentOffset = App.Placement(V(0, 0, 20), App.Rotation())
mirrored3 = body.newObject("PartDesign::Mirrored", "Mirrored002")
mirrored3.Originals = [pad3]
mirrored3.MirrorPlane = (datumplane3, [""])
body.Tip = mirrored3

sketch6 = body.newObject("Sketcher::SketchObject", "Sketch005")
sketch6.AttachmentSupport = (doc.getObject("XZ_Plane"), [""])
sketch6.MapMode = "FlatFace"
sketch6.AttachmentOffset = App.Placement(V(0, 0, -451.894612), App.Rotation())
sketch6.addGeometry([
    Part.Circle(V(1208.3, 7, 0), V(0, 0, 1), 1.8),
    Part.Circle(V(1182.3, 7, 0), V(0, 0, 1), 1.8),
    Part.Circle(V(1208.3, 33, 0), V(0, 0, 1), 1.8),
    Part.Circle(V(1182.3, 33, 0), V(0, 0, 1), 1.8),
], False)
sketch6.addConstraint([
    Sketcher.Constraint("Equal", 0, 1),
    Sketcher.Constraint("Equal", 1, 2),
    Sketcher.Constraint("Equal", 2, 3),
    Sketcher.Constraint("Horizontal", 0, 3, 1, 3),
    Sketcher.Constraint("Horizontal", 2, 3, 3, 3),
    Sketcher.Constraint("Vertical", 0, 3, 2, 3),
    Sketcher.Constraint("Vertical", 1, 3, 3, 3),
    Sketcher.Constraint("Diameter", 0, Q("3.6 mm")),
    Sketcher.Constraint("DistanceY", -1, 1, 0, 3, Q("7 mm")),
    Sketcher.Constraint("DistanceY", -1, 1, 2, 3, Q("33 mm")),
    Sketcher.Constraint("DistanceX", 1, 3, 0, 3, Q("26 mm")),
    Sketcher.Constraint("DistanceX", -1, 1, 0, 3, Q("1208.254923 mm")),
])
pocket3 = body.newObject("PartDesign::Pocket", "Pocket002")
pocket3.Profile = sketch6
pocket3.Length = 10
pocket3.Reversed = True

doc.recompute()
